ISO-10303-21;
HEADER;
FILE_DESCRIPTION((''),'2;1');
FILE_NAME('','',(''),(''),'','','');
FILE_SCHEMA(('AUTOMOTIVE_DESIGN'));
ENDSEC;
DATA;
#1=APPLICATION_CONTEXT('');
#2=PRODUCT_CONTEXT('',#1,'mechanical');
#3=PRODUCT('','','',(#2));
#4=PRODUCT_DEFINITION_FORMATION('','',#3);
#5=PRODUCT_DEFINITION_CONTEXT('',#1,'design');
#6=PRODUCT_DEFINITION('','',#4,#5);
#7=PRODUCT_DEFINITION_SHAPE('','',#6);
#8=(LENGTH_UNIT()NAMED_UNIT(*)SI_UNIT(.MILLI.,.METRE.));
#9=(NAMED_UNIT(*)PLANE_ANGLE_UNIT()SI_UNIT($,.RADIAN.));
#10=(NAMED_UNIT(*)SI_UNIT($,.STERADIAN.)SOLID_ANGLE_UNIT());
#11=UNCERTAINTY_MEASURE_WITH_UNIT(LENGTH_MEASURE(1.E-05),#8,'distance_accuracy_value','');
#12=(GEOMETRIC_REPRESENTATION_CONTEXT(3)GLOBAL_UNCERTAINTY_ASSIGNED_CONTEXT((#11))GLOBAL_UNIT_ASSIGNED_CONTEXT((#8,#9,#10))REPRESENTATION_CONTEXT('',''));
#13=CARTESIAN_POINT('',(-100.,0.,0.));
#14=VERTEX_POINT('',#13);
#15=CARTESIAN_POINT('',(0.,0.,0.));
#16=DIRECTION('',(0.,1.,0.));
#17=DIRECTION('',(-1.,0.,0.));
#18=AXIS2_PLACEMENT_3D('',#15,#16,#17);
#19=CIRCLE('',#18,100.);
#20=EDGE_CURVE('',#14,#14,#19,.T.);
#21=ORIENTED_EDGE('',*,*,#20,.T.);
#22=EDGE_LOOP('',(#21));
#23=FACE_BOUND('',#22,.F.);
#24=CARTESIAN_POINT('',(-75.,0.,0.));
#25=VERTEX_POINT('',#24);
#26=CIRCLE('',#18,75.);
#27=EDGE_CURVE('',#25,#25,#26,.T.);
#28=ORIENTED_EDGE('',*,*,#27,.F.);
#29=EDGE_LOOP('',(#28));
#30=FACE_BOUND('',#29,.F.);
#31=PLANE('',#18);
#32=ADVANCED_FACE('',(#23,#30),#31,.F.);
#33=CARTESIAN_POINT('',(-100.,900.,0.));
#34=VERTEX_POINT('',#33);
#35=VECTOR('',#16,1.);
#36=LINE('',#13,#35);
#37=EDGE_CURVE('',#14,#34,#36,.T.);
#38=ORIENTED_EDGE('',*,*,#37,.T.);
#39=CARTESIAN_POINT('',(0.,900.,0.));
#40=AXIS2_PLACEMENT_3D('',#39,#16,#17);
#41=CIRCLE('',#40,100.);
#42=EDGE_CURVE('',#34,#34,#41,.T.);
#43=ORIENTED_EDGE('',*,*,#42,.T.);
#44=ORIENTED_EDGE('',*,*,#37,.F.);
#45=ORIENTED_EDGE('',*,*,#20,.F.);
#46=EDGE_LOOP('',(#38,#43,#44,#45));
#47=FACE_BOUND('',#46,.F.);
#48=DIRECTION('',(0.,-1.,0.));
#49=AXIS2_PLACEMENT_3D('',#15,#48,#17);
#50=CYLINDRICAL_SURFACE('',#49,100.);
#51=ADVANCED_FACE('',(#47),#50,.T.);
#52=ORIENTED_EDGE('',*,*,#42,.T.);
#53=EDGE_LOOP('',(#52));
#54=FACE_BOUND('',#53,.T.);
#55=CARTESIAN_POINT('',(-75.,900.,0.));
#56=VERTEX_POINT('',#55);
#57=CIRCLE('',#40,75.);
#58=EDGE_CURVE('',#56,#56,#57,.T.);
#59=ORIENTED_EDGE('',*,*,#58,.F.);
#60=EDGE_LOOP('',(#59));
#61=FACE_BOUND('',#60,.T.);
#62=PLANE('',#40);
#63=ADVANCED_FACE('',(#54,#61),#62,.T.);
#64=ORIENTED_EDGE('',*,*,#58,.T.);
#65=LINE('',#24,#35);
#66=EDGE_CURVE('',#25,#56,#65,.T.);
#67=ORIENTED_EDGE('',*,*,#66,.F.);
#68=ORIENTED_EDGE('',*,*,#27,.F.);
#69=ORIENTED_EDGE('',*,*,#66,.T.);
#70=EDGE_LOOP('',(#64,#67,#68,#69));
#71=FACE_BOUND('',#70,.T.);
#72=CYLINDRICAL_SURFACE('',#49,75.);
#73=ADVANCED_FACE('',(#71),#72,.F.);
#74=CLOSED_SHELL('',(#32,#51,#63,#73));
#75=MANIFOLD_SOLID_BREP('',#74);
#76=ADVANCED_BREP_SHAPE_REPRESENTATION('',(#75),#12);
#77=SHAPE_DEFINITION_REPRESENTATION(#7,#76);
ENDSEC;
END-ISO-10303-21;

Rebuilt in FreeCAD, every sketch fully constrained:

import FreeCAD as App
import Part
import Sketcher
from FreeCAD import Vector

doc = App.newDocument("Part")
params = doc.addObject("Spreadsheet::Sheet", "Params")
for row, (alias, value) in enumerate([
    ("sketch1_diameter", "200 mm"),
    ("sketch1_diameter2", "150 mm"),
    ("pad1_length", "900 mm"),
], start=1):
    params.set(f"A{row}", alias)
    params.set(f"B{row}", "=" + value)
    params.setAlias(f"B{row}", alias)

body = doc.addObject("PartDesign::Body", "Body")

# Sketch on XZ plane
sketch1 = body.newObject("Sketcher::SketchObject", "Sketch")
sketch1.AttachmentSupport = (doc.getObject("XZ_Plane"), [""])
sketch1.MapMode = "FlatFace"
sketch1.addGeometry(Part.Circle(Vector(0, 0, 0), Vector(0, 0, 1), 100), False)
sketch1.addGeometry(Part.Circle(Vector(0, 0, 0), Vector(0, 0, 1), 75), False)
sketch1.addConstraint(Sketcher.Constraint("Coincident", 0, 3, -1, 1))
sketch1.addConstraint(Sketcher.Constraint("Coincident", 1, 3, -1, 1))
sketch1.addConstraint(Sketcher.Constraint("Diameter", 0, 200.0))
sketch1.addConstraint(Sketcher.Constraint("Diameter", 1, 150.0))
sketch1.setExpression("Constraints[2]", "Params.sketch1_diameter")
sketch1.setExpression("Constraints[3]", "Params.sketch1_diameter2")
pad1 = body.newObject("PartDesign::Pad", "Pad")
pad1.Profile = sketch1
pad1.setExpression("Length", "Params.pad1_length")
pad1.Reversed = True

doc.recompute()
